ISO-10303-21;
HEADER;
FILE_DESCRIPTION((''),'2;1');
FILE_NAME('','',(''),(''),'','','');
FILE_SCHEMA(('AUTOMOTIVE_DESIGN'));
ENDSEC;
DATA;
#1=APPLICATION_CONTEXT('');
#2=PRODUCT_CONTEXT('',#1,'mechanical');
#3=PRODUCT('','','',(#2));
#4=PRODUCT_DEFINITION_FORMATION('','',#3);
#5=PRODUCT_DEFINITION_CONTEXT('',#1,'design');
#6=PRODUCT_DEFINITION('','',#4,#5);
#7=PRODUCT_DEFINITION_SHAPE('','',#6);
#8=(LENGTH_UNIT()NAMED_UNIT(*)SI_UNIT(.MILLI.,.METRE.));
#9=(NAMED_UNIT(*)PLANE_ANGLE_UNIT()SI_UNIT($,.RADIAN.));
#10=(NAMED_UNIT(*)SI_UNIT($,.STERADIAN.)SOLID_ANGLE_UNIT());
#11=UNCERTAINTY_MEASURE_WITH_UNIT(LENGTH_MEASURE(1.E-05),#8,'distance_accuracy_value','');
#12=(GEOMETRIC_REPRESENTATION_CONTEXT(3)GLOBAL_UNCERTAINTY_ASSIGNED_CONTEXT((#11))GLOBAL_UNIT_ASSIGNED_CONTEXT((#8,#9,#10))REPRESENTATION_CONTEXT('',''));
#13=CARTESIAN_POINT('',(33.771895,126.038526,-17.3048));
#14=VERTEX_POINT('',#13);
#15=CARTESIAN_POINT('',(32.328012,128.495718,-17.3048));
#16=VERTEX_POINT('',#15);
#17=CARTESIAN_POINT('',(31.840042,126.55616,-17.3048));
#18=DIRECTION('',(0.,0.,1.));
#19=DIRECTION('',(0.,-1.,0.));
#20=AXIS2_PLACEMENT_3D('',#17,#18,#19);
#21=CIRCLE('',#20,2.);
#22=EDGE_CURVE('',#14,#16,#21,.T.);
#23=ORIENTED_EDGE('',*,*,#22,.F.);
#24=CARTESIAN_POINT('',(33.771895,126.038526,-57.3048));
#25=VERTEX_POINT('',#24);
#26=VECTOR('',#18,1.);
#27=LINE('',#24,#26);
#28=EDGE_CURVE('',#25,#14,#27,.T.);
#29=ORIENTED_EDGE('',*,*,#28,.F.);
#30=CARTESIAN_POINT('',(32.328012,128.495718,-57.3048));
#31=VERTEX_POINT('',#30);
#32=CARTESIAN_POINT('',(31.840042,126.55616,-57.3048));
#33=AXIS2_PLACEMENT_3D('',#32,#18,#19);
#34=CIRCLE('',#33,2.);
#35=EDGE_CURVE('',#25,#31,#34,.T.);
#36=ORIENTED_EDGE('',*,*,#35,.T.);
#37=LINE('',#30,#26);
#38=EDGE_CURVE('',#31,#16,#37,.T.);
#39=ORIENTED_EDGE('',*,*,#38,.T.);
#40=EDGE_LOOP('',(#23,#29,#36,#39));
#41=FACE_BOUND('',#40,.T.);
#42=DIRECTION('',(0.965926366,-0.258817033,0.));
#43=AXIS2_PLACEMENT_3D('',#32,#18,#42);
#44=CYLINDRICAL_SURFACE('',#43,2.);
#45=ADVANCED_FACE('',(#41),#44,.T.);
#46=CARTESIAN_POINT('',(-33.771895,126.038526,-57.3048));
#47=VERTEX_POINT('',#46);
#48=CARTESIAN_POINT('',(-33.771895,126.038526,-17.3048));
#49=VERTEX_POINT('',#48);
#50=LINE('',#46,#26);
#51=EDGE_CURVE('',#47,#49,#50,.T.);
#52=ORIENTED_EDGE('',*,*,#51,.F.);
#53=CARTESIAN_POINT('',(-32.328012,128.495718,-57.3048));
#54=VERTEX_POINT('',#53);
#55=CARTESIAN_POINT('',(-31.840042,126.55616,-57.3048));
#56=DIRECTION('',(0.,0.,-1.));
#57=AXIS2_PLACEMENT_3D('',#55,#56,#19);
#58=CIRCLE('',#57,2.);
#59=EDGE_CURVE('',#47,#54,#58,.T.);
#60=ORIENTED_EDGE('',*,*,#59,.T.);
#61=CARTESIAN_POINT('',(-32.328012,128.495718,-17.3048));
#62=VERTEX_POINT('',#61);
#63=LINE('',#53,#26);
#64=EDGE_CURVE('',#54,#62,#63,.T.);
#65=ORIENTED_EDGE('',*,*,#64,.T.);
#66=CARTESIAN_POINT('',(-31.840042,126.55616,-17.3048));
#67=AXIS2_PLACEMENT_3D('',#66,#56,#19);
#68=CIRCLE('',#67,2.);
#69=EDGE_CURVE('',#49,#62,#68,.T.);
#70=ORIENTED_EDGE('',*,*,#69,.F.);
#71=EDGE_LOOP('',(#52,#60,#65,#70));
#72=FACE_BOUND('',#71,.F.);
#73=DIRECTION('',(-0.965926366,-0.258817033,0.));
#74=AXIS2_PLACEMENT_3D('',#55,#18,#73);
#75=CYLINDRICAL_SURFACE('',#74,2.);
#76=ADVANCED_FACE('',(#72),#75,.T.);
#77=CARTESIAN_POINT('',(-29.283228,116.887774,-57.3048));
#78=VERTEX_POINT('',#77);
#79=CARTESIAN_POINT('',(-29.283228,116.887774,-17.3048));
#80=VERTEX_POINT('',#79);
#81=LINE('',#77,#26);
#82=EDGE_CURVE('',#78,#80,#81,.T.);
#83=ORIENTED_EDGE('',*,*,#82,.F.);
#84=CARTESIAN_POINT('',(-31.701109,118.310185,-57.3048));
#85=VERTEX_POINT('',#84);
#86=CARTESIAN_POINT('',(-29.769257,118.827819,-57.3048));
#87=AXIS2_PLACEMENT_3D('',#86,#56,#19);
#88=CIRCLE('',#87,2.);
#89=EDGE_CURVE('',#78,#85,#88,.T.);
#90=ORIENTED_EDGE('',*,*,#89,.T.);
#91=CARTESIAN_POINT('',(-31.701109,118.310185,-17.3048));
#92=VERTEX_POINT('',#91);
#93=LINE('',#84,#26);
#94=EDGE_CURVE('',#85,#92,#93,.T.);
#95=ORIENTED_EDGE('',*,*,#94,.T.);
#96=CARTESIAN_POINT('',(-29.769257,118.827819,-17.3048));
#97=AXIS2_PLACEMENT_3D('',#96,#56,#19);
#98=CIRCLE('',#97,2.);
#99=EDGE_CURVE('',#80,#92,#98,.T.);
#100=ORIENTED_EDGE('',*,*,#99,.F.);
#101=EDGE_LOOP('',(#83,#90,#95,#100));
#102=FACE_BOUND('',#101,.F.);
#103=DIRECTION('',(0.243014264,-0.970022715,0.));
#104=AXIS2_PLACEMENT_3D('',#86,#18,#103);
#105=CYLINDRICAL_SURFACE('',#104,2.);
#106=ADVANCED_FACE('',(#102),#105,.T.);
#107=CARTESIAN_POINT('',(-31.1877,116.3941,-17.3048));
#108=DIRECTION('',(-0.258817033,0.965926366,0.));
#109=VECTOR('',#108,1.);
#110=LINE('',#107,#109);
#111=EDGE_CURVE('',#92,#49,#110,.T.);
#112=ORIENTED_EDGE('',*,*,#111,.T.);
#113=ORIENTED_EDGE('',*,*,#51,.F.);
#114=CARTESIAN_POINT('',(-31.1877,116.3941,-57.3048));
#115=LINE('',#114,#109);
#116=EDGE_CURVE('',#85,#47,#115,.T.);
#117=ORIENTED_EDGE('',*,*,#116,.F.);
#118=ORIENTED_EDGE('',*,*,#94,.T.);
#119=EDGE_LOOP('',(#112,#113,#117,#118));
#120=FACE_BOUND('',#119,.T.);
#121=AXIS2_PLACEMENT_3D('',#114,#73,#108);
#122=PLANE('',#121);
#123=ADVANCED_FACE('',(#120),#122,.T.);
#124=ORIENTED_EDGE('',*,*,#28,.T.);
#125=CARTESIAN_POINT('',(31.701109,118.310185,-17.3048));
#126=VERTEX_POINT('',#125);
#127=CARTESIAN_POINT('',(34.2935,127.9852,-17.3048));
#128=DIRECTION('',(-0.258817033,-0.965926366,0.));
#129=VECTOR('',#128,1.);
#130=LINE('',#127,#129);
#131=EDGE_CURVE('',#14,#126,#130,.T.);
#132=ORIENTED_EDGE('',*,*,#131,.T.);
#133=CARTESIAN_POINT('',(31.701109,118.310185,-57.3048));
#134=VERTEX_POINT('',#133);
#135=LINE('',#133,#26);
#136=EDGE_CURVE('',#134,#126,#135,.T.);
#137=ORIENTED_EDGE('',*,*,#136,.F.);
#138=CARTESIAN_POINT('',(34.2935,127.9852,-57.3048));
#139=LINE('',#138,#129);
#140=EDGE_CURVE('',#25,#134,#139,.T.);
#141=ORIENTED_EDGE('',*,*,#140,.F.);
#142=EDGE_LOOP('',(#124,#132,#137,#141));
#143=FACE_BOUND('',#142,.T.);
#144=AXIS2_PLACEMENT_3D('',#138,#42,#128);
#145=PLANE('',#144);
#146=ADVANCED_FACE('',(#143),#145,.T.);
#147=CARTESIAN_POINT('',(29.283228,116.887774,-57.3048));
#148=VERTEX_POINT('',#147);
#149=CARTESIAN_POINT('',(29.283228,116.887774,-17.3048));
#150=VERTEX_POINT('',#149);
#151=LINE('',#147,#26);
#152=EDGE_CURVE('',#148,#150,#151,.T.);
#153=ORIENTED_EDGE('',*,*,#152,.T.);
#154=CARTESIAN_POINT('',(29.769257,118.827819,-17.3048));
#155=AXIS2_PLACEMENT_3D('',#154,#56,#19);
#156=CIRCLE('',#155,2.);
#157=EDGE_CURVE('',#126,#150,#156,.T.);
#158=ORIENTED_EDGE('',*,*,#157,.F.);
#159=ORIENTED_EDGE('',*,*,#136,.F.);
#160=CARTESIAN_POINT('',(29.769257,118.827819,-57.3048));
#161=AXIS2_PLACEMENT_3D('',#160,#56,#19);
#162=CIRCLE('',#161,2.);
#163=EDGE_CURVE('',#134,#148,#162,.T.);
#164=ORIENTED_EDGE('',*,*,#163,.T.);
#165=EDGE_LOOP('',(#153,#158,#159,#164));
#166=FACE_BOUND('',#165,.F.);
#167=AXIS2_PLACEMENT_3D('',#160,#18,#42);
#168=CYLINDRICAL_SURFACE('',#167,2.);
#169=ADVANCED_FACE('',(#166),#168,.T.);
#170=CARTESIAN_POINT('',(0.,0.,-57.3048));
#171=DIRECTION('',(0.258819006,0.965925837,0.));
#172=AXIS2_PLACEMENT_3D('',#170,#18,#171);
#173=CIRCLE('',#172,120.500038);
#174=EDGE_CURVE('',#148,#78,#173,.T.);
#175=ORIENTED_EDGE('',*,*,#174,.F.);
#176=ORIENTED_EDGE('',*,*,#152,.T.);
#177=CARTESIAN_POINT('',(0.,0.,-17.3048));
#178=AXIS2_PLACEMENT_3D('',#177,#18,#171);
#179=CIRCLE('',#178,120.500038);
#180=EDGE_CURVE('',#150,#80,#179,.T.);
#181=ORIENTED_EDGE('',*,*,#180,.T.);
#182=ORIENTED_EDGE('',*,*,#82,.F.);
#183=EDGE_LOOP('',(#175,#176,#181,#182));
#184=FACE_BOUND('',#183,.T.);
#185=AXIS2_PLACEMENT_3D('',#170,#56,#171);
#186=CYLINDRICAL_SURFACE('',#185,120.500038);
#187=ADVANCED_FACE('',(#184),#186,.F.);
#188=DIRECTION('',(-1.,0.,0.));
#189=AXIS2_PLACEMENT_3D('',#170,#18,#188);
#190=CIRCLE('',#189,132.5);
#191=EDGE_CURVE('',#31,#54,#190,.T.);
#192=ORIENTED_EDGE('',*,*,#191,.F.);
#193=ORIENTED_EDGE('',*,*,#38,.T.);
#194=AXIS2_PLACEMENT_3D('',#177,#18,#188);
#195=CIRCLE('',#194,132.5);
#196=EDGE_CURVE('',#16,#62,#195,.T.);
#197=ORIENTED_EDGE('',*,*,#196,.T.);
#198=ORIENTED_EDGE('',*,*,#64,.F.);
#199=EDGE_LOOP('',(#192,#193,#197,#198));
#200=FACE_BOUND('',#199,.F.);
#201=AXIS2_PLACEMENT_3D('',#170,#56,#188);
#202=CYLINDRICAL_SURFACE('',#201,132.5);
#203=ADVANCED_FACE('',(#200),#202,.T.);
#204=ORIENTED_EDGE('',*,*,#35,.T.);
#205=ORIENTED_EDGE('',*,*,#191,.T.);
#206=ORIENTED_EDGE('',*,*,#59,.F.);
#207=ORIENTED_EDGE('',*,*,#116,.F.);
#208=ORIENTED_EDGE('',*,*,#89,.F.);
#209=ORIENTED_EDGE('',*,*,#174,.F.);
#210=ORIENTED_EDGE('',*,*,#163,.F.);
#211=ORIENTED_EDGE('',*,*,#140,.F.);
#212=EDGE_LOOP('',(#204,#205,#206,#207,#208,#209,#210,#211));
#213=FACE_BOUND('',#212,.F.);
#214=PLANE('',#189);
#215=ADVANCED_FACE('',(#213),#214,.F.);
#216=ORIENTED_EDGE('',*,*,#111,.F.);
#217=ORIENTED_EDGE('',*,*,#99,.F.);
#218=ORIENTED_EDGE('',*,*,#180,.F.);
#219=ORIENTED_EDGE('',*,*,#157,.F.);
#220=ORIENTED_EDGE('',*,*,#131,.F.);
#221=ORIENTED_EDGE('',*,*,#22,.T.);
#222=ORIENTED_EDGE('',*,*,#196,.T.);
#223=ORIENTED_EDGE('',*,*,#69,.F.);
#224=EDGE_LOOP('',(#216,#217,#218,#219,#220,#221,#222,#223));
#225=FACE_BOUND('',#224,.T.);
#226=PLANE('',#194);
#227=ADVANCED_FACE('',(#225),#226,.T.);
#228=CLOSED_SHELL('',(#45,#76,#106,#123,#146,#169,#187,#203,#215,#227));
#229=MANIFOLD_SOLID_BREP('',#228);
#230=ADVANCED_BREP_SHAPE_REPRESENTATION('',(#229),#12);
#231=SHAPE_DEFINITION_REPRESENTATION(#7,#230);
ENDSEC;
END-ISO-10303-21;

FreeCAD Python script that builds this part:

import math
import FreeCAD as App
import Part
import Sketcher
Q = App.Units.Quantity


def edges_at(feature, points):
    """Names of the edges that pass closest to the given points."""
    edges = feature.Shape.Edges
    near = lambda p: min(range(len(edges)), key=lambda i: edges[i].distToShape(Part.Vertex(*p))[0])
    return sorted({f"Edge{near(p) + 1}" for p in points})

doc = App.newDocument("Part")
body = doc.addObject("PartDesign::Body", "Body")

# Sketch on XY plane
sketch1 = doc.addObject("Sketcher::SketchObject", "Sketch")
body.addObject(sketch1)
sketch1.AttachmentSupport = (doc.XY_Plane, [""])
sketch1.MapMode = "FlatFace"
sketch1.AttachmentOffset = App.Placement(App.Vector(0, 0, -57.3048), App.Rotation())
sketch1.addGeometry(Part.LineSegment(App.Vector(31, 116, 0), App.Vector(34, 128, 0)), False)
sketch1.addGeometry(Part.ArcOfCircle(Part.Circle(App.Vector(0, 0, 0), App.Vector(0, 0, 1), 132), math.radians(75), math.radians(105)), False)
sketch1.addGeometry(Part.LineSegment(App.Vector(-34, 128, 0), App.Vector(-31, 116, 0)), False)
sketch1.addGeometry(Part.ArcOfCircle(Part.Circle(App.Vector(0, 0, 0), App.Vector(0, 0, 1), 121), math.radians(75), math.radians(105)), False)
sketch1.addConstraint(Sketcher.Constraint("Coincident", 0, 2, 1, 1))
sketch1.addConstraint(Sketcher.Constraint("Coincident", 1, 2, 2, 1))
sketch1.addConstraint(Sketcher.Constraint("Coincident", 2, 2, 3, 2))
sketch1.addConstraint(Sketcher.Constraint("Coincident", 3, 1, 0, 1))
sketch1.addConstraint(Sketcher.Constraint("Coincident", 1, 3, -1, 1))
sketch1.addConstraint(Sketcher.Constraint("Coincident", 3, 3, -1, 1))
sketch1.addConstraint(Sketcher.Constraint("Horizontal", 0, 2, 1, 2))
sketch1.addConstraint(Sketcher.Constraint("Horizontal", 2, 2, 3, 1))
sketch1.addConstraint(Sketcher.Constraint("Radius", 1, Q("132.5 mm")))
sketch1.addConstraint(Sketcher.Constraint("Radius", 3, Q("120.5 mm")))
sketch1.addConstraint(Sketcher.Constraint("Angle", 0, Q("75 deg")))
sketch1.addConstraint(Sketcher.Constraint("DistanceY", -1, 1, 2, 2, Q("116.394 mm")))
pad1 = doc.addObject("PartDesign::Pad", "Pad")
body.addObject(pad1)
pad1.Profile = sketch1
pad1.Length = 40
doc.recompute()

fillet = doc.addObject("PartDesign::Fillet", "Fillet")
body.addObject(fillet)
fillet.Base = (pad1, edges_at(pad1, [
    (34.294, 127.985, -37.305),
    (31.188, 116.394, -37.305),
    (-31.188, 116.394, -37.305),
    (-34.294, 127.985, -37.305),
]))
fillet.Radius = 2

doc.recompute()
